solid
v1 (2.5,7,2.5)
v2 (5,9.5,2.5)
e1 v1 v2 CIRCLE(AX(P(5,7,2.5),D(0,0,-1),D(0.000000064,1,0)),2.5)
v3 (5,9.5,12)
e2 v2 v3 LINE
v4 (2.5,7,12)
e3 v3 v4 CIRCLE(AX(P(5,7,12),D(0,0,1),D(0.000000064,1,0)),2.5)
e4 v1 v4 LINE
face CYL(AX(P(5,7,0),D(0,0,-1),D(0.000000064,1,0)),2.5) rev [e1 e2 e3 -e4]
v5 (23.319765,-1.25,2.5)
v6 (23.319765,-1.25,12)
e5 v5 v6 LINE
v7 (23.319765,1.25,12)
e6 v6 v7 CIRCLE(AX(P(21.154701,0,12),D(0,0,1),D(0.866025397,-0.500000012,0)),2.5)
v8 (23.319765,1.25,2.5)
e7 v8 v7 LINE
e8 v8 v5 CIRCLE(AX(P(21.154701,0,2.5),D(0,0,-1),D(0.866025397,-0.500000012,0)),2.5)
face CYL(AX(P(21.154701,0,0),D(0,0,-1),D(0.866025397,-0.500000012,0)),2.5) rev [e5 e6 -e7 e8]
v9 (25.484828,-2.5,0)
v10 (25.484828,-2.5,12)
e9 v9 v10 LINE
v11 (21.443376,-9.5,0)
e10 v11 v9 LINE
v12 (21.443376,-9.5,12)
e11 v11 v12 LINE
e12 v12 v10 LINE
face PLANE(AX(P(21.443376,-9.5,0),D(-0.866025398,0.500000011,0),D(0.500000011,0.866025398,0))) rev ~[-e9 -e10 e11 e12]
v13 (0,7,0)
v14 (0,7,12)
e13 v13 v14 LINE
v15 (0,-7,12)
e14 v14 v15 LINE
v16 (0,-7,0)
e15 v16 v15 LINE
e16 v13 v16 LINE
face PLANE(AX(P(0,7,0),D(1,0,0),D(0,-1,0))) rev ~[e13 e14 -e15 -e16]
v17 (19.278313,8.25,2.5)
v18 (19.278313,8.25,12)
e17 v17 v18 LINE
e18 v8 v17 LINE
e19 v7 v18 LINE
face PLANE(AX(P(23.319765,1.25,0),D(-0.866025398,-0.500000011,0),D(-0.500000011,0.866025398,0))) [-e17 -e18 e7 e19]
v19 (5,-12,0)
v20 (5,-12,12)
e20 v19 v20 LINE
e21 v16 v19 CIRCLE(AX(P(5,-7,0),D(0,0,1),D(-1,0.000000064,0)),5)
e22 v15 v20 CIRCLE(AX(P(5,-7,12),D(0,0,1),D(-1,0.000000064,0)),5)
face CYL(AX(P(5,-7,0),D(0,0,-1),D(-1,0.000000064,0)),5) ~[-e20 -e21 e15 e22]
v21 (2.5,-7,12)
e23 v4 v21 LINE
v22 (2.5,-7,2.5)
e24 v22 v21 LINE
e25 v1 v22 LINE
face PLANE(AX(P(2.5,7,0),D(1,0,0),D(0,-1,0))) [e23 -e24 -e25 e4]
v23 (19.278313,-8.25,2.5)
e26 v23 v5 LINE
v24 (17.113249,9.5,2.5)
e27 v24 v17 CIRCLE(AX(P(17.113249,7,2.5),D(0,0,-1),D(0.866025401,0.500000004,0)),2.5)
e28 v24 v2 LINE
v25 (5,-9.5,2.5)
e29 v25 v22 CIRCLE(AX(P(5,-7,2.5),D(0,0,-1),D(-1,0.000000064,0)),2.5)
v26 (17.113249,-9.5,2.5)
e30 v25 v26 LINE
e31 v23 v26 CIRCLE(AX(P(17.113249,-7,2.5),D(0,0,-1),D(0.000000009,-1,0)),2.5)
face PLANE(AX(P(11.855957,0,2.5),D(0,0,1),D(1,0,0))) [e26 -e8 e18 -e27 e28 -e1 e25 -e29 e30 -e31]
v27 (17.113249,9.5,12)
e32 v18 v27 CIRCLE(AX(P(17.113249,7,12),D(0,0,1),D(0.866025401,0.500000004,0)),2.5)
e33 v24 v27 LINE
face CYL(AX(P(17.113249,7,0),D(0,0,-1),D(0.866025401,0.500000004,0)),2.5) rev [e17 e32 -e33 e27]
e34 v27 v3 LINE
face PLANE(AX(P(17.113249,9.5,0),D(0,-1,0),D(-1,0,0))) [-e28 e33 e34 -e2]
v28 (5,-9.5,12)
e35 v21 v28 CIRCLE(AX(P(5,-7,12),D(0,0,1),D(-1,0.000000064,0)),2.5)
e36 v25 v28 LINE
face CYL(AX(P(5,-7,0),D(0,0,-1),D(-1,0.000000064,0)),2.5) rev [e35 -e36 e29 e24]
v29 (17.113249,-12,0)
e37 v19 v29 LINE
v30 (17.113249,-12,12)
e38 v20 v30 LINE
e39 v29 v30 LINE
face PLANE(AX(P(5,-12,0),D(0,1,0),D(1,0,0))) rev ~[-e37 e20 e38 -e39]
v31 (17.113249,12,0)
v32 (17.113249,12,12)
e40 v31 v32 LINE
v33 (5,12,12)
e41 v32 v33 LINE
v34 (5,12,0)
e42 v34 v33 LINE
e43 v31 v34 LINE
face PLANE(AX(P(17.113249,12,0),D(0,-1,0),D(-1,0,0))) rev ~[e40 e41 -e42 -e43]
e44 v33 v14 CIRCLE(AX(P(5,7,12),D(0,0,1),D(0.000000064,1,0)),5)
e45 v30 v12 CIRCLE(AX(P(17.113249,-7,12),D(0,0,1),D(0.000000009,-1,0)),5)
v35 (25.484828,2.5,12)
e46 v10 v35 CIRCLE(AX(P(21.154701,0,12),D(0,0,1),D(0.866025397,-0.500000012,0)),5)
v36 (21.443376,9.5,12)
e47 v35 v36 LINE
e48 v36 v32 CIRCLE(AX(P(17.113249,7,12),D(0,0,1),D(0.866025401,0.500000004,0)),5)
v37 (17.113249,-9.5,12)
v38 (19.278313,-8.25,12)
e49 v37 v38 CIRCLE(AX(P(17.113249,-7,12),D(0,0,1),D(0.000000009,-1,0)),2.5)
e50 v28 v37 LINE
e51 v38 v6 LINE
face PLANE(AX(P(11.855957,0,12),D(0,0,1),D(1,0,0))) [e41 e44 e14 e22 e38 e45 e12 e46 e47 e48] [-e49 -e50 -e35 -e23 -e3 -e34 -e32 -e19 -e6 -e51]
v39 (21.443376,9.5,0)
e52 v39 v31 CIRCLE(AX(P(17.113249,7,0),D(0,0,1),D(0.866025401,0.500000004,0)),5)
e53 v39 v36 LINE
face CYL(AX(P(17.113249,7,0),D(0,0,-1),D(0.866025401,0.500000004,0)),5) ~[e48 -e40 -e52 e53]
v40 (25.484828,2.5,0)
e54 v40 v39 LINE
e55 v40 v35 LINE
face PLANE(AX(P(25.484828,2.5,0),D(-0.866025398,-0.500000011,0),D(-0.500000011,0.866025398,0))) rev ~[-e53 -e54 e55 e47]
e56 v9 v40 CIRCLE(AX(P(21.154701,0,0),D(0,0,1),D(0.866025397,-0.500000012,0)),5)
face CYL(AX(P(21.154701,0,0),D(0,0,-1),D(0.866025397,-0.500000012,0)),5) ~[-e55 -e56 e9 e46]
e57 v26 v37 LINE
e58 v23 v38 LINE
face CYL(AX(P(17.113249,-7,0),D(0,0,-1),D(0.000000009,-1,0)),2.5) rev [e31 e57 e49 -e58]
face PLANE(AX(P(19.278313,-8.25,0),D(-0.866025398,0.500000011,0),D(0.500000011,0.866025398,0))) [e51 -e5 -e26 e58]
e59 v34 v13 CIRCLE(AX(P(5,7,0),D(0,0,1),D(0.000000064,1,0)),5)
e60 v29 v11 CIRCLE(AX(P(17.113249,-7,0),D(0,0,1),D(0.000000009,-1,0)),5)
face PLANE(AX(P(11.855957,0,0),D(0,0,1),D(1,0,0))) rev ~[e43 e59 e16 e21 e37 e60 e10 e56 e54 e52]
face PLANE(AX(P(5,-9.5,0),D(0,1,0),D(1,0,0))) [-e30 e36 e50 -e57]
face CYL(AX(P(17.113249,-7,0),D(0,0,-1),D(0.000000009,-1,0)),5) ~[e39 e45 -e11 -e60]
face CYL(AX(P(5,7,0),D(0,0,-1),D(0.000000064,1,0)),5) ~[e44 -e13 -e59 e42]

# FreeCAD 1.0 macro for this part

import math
import FreeCAD as App
import Part
import Sketcher

V = App.Vector
Q = App.Units.Quantity


def faces_at(feature, points):
    """Names of the faces that lie closest to the given points."""
    faces = feature.Shape.Faces
    near = lambda p: min(range(len(faces)), key=lambda i: faces[i].distToShape(Part.Vertex(*p))[0])
    return sorted({f"Face{near(p) + 1}" for p in points})

doc = App.newDocument("Part")
params = doc.addObject("Spreadsheet::Sheet", "Params")
for row, (alias, value) in enumerate([
    ("sketch1_radius", "5 mm"),
    ("sketch1_height", "14 mm"),
    ("pad1_length", "12 mm"),
    ("thickness_wall", "2.5 mm"),
], start=1):
    params.set(f"A{row}", alias)
    params.set(f"B{row}", "=" + value)
    params.setAlias(f"B{row}", alias)

body = doc.addObject("PartDesign::Body", "Body")

sketch1 = body.newObject("Sketcher::SketchObject", "Sketch")
sketch1.AttachmentSupport = (doc.getObject("XY_Plane"), [""])
sketch1.MapMode = "FlatFace"
sketch1.addGeometry(Part.ArcOfCircle(Part.Circle(V(5, 7, 0), V(0, 0, 1), 5), math.radians(90), math.radians(180)), False)
sketch1.addGeometry(Part.LineSegment(V(0, 7, 0), V(0, -7, 0)), False)
sketch1.addGeometry(Part.ArcOfCircle(Part.Circle(V(5, -7, 0), V(0, 0, 1), 5), math.radians(180), math.radians(270)), False)
sketch1.addGeometry(Part.LineSegment(V(5, -12, 0), V(17.1, -12, 0)), False)
sketch1.addGeometry(Part.ArcOfCircle(Part.Circle(V(17.1, -7, 0), V(0, 0, 1), 5), math.radians(-90), math.radians(-30)), False)
sketch1.addGeometry(Part.LineSegment(V(21.4, -9.5, 0), V(25.5, -2.5, 0)), False)
sketch1.addGeometry(Part.ArcOfCircle(Part.Circle(V(21.2, 0, 0), V(0, 0, 1), 5), math.radians(-30), math.radians(30)), False)
sketch1.addGeometry(Part.LineSegment(V(25.5, 2.5, 0), V(21.4, 9.5, 0)), False)
sketch1.addGeometry(Part.ArcOfCircle(Part.Circle(V(17.1, 7, 0), V(0, 0, 1), 5), math.radians(30), math.radians(90)), False)
sketch1.addGeometry(Part.LineSegment(V(17.1, 12, 0), V(5, 12, 0)), False)
sketch1.addConstraint(Sketcher.Constraint("Tangent", 0, 2, 1, 1))
sketch1.addConstraint(Sketcher.Constraint("Tangent", 1, 2, 2, 1))
sketch1.addConstraint(Sketcher.Constraint("Tangent", 2, 2, 3, 1))
sketch1.addConstraint(Sketcher.Constraint("Tangent", 3, 2, 4, 1))
sketch1.addConstraint(Sketcher.Constraint("Tangent", 4, 2, 5, 1))
sketch1.addConstraint(Sketcher.Constraint("Tangent", 5, 2, 6, 1))
sketch1.addConstraint(Sketcher.Constraint("Tangent", 6, 2, 7, 1))
sketch1.addConstraint(Sketcher.Constraint("Tangent", 7, 2, 8, 1))
sketch1.addConstraint(Sketcher.Constraint("Tangent", 8, 2, 9, 1))
sketch1.addConstraint(Sketcher.Constraint("Tangent", 9, 2, 0, 1))
sketch1.addConstraint(Sketcher.Constraint("Vertical", 1))
sketch1.addConstraint(Sketcher.Constraint("Horizontal", 3))
sketch1.addConstraint(Sketcher.Constraint("Horizontal", 9))
sketch1.addConstraint(Sketcher.Constraint("Equal", 0, 2))
sketch1.addConstraint(Sketcher.Constraint("Equal", 2, 4))
sketch1.addConstraint(Sketcher.Constraint("Equal", 4, 6))
sketch1.addConstraint(Sketcher.Constraint("Equal", 6, 8))
sketch1.addConstraint(Sketcher.Constraint("Symmetric", 0, 2, 1, 2, -1, 1))
sketch1.addConstraint(Sketcher.Constraint("Symmetric", 5, 2, 6, 2, -1))
sketch1.addConstraint(Sketcher.Constraint("Radius", 0, Q("5 mm")))
sketch1.addConstraint(Sketcher.Constraint("DistanceY", 1, 2, 1, 1, Q("14 mm")))
sketch1.addConstraint(Sketcher.Constraint("Angle", 5, Q("59.999999 deg")))
sketch1.addConstraint(Sketcher.Constraint("DistanceX", 3, 1, 3, 2, Q("12.113249 mm")))
sketch1.setExpression("Constraints[19]", "Params.sketch1_radius")
sketch1.setExpression("Constraints[20]", "Params.sketch1_height")
pad1 = body.newObject("PartDesign::Pad", "Pad")
pad1.Profile = sketch1
pad1.setExpression("Length", "Params.pad1_length")
doc.recompute()

thickness = body.newObject("PartDesign::Thickness", "Thickness")
thickness.Base = (pad1, faces_at(pad1, [(13.077, 0, 12)]))
thickness.setExpression("Value", "Params.thickness_wall")
thickness.Reversed = True
thickness.Join = "Arc"

doc.recompute()
